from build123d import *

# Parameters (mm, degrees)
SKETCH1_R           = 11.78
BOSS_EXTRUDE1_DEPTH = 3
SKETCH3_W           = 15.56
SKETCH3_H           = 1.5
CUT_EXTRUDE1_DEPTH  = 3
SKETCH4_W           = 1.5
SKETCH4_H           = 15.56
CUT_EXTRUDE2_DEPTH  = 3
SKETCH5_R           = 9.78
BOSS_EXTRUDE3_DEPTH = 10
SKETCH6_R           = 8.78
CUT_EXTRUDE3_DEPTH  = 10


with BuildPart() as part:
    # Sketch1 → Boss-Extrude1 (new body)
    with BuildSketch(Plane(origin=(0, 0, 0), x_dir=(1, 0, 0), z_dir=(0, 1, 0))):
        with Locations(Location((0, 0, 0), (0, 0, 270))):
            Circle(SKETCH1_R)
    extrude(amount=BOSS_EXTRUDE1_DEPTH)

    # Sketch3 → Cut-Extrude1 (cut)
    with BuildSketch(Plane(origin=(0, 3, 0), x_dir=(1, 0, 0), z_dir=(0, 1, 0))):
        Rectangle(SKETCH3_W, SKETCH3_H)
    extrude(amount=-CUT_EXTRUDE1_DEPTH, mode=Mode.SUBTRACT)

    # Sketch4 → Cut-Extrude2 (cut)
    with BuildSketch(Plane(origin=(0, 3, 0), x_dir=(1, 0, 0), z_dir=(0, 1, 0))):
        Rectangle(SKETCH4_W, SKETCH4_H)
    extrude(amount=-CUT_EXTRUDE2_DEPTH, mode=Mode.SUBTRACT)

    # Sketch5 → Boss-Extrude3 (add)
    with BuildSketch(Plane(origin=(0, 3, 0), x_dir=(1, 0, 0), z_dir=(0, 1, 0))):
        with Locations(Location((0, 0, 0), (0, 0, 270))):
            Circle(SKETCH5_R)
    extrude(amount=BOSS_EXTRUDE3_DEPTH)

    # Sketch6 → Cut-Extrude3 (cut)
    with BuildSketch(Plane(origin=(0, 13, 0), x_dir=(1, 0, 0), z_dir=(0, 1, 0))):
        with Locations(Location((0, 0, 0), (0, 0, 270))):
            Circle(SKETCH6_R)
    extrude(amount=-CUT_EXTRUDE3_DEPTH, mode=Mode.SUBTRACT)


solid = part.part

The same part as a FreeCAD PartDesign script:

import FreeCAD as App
import Part
import Sketcher

V = App.Vector
Q = App.Units.Quantity

doc = App.newDocument("Part")
body = doc.addObject("PartDesign::Body", "Body")

sketch1 = body.newObject("Sketcher::SketchObject", "Sketch")
sketch1.AttachmentSupport = (doc.getObject("XZ_Plane"), [""])
sketch1.MapMode = "FlatFace"
sketch1.addGeometry(Part.Circle(V(0, 0, 0), V(0, 0, 1), 11.78), False)
sketch1.addConstraint([
    Sketcher.Constraint("Coincident", 0, 3, -1, 1),
    Sketcher.Constraint("Diameter", 0, Q("23.56 mm")),
])
pad1 = body.newObject("PartDesign::Pad", "Pad")
pad1.Profile = sketch1
pad1.Length = 3
pad1.Reversed = True

sketch2 = body.newObject("Sketcher::SketchObject", "Sketch001")
sketch2.AttachmentSupport = (doc.getObject("XZ_Plane"), [""])
sketch2.MapMode = "FlatFace"
sketch2.AttachmentOffset = App.Placement(V(0, 0, -3), App.Rotation())
sketch2.addGeometry([
    Part.LineSegment(V(-7.78, -0.75, 0), V(-7.78, 0.75, 0)),
    Part.LineSegment(V(-7.78, 0.75, 0), V(7.78, 0.75, 0)),
    Part.LineSegment(V(7.78, 0.75, 0), V(7.78, -0.75, 0)),
    Part.LineSegment(V(7.78, -0.75, 0), V(-7.78, -0.75, 0)),
], False)
sketch2.addConstraint([
    Sketcher.Constraint("Coincident", 0, 2, 1, 1),
    Sketcher.Constraint("Coincident", 1, 2, 2, 1),
    Sketcher.Constraint("Coincident", 2, 2, 3, 1),
    Sketcher.Constraint("Coincident", 3, 2, 0, 1),
    Sketcher.Constraint("Vertical", 0),
    Sketcher.Constraint("Horizontal", 1),
    Sketcher.Constraint("Vertical", 2),
    Sketcher.Constraint("Horizontal", 3),
    Sketcher.Constraint("Symmetric", 0, 2, 2, 2, -1, 1),
    Sketcher.Constraint("DistanceY", 0, 1, 0, 2, Q("1.5 mm")),
    Sketcher.Constraint("DistanceX", 1, 1, 1, 2, Q("15.56 mm")),
])
pocket1 = body.newObject("PartDesign::Pocket", "Pocket")
pocket1.Profile = sketch2
pocket1.Length = 3
pocket1.Reversed = True

sketch3 = body.newObject("Sketcher::SketchObject", "Sketch002")
sketch3.AttachmentSupport = (doc.getObject("XZ_Plane"), [""])
sketch3.MapMode = "FlatFace"
sketch3.AttachmentOffset = App.Placement(V(0, 0, -3), App.Rotation())
sketch3.addGeometry([
    Part.LineSegment(V(-0.75, -7.78, 0), V(-0.75, 7.78, 0)),
    Part.LineSegment(V(-0.75, 7.78, 0), V(0.75, 7.78, 0)),
    Part.LineSegment(V(0.75, 7.78, 0), V(0.75, -7.78, 0)),
    Part.LineSegment(V(0.75, -7.78, 0), V(-0.75, -7.78, 0)),
], False)
sketch3.addConstraint([
    Sketcher.Constraint("Coincident", 0, 2, 1, 1),
    Sketcher.Constraint("Coincident", 1, 2, 2, 1),
    Sketcher.Constraint("Coincident", 2, 2, 3, 1),
    Sketcher.Constraint("Coincident", 3, 2, 0, 1),
    Sketcher.Constraint("Vertical", 0),
    Sketcher.Constraint("Horizontal", 1),
    Sketcher.Constraint("Vertical", 2),
    Sketcher.Constraint("Horizontal", 3),
    Sketcher.Constraint("Symmetric", 0, 2, 2, 2, -1, 1),
    Sketcher.Constraint("DistanceX", 1, 1, 1, 2, Q("1.5 mm")),
    Sketcher.Constraint("DistanceY", 0, 1, 0, 2, Q("15.56 mm")),
])
pocket2 = body.newObject("PartDesign::Pocket", "Pocket001")
pocket2.Profile = sketch3
pocket2.Length = 3
pocket2.Reversed = True

sketch4 = body.newObject("Sketcher::SketchObject", "Sketch003")
sketch4.AttachmentSupport = (doc.getObject("XZ_Plane"), [""])
sketch4.MapMode = "FlatFace"
sketch4.AttachmentOffset = App.Placement(V(0, 0, -3), App.Rotation())
sketch4.addGeometry(Part.Circle(V(0, 0, 0), V(0, 0, 1), 9.78), False)
sketch4.addConstraint([
    Sketcher.Constraint("Coincident", 0, 3, -1, 1),
    Sketcher.Constraint("Diameter", 0, Q("19.56 mm")),
])
pad2 = body.newObject("PartDesign::Pad", "Pad001")
pad2.Profile = sketch4
pad2.Length = 10
pad2.Reversed = True

sketch5 = body.newObject("Sketcher::SketchObject", "Sketch004")
sketch5.AttachmentSupport = (doc.getObject("XZ_Plane"), [""])
sketch5.MapMode = "FlatFace"
sketch5.AttachmentOffset = App.Placement(V(0, 0, -13), App.Rotation())
sketch5.addGeometry(Part.Circle(V(0, 0, 0), V(0, 0, 1), 8.78), False)
sketch5.addConstraint([
    Sketcher.Constraint("Coincident", 0, 3, -1, 1),
    Sketcher.Constraint("Diameter", 0, Q("17.56 mm")),
])
pocket3 = body.newObject("PartDesign::Pocket", "Pocket002")
pocket3.Profile = sketch5
pocket3.Length = 10
pocket3.Reversed = True

doc.recompute()
